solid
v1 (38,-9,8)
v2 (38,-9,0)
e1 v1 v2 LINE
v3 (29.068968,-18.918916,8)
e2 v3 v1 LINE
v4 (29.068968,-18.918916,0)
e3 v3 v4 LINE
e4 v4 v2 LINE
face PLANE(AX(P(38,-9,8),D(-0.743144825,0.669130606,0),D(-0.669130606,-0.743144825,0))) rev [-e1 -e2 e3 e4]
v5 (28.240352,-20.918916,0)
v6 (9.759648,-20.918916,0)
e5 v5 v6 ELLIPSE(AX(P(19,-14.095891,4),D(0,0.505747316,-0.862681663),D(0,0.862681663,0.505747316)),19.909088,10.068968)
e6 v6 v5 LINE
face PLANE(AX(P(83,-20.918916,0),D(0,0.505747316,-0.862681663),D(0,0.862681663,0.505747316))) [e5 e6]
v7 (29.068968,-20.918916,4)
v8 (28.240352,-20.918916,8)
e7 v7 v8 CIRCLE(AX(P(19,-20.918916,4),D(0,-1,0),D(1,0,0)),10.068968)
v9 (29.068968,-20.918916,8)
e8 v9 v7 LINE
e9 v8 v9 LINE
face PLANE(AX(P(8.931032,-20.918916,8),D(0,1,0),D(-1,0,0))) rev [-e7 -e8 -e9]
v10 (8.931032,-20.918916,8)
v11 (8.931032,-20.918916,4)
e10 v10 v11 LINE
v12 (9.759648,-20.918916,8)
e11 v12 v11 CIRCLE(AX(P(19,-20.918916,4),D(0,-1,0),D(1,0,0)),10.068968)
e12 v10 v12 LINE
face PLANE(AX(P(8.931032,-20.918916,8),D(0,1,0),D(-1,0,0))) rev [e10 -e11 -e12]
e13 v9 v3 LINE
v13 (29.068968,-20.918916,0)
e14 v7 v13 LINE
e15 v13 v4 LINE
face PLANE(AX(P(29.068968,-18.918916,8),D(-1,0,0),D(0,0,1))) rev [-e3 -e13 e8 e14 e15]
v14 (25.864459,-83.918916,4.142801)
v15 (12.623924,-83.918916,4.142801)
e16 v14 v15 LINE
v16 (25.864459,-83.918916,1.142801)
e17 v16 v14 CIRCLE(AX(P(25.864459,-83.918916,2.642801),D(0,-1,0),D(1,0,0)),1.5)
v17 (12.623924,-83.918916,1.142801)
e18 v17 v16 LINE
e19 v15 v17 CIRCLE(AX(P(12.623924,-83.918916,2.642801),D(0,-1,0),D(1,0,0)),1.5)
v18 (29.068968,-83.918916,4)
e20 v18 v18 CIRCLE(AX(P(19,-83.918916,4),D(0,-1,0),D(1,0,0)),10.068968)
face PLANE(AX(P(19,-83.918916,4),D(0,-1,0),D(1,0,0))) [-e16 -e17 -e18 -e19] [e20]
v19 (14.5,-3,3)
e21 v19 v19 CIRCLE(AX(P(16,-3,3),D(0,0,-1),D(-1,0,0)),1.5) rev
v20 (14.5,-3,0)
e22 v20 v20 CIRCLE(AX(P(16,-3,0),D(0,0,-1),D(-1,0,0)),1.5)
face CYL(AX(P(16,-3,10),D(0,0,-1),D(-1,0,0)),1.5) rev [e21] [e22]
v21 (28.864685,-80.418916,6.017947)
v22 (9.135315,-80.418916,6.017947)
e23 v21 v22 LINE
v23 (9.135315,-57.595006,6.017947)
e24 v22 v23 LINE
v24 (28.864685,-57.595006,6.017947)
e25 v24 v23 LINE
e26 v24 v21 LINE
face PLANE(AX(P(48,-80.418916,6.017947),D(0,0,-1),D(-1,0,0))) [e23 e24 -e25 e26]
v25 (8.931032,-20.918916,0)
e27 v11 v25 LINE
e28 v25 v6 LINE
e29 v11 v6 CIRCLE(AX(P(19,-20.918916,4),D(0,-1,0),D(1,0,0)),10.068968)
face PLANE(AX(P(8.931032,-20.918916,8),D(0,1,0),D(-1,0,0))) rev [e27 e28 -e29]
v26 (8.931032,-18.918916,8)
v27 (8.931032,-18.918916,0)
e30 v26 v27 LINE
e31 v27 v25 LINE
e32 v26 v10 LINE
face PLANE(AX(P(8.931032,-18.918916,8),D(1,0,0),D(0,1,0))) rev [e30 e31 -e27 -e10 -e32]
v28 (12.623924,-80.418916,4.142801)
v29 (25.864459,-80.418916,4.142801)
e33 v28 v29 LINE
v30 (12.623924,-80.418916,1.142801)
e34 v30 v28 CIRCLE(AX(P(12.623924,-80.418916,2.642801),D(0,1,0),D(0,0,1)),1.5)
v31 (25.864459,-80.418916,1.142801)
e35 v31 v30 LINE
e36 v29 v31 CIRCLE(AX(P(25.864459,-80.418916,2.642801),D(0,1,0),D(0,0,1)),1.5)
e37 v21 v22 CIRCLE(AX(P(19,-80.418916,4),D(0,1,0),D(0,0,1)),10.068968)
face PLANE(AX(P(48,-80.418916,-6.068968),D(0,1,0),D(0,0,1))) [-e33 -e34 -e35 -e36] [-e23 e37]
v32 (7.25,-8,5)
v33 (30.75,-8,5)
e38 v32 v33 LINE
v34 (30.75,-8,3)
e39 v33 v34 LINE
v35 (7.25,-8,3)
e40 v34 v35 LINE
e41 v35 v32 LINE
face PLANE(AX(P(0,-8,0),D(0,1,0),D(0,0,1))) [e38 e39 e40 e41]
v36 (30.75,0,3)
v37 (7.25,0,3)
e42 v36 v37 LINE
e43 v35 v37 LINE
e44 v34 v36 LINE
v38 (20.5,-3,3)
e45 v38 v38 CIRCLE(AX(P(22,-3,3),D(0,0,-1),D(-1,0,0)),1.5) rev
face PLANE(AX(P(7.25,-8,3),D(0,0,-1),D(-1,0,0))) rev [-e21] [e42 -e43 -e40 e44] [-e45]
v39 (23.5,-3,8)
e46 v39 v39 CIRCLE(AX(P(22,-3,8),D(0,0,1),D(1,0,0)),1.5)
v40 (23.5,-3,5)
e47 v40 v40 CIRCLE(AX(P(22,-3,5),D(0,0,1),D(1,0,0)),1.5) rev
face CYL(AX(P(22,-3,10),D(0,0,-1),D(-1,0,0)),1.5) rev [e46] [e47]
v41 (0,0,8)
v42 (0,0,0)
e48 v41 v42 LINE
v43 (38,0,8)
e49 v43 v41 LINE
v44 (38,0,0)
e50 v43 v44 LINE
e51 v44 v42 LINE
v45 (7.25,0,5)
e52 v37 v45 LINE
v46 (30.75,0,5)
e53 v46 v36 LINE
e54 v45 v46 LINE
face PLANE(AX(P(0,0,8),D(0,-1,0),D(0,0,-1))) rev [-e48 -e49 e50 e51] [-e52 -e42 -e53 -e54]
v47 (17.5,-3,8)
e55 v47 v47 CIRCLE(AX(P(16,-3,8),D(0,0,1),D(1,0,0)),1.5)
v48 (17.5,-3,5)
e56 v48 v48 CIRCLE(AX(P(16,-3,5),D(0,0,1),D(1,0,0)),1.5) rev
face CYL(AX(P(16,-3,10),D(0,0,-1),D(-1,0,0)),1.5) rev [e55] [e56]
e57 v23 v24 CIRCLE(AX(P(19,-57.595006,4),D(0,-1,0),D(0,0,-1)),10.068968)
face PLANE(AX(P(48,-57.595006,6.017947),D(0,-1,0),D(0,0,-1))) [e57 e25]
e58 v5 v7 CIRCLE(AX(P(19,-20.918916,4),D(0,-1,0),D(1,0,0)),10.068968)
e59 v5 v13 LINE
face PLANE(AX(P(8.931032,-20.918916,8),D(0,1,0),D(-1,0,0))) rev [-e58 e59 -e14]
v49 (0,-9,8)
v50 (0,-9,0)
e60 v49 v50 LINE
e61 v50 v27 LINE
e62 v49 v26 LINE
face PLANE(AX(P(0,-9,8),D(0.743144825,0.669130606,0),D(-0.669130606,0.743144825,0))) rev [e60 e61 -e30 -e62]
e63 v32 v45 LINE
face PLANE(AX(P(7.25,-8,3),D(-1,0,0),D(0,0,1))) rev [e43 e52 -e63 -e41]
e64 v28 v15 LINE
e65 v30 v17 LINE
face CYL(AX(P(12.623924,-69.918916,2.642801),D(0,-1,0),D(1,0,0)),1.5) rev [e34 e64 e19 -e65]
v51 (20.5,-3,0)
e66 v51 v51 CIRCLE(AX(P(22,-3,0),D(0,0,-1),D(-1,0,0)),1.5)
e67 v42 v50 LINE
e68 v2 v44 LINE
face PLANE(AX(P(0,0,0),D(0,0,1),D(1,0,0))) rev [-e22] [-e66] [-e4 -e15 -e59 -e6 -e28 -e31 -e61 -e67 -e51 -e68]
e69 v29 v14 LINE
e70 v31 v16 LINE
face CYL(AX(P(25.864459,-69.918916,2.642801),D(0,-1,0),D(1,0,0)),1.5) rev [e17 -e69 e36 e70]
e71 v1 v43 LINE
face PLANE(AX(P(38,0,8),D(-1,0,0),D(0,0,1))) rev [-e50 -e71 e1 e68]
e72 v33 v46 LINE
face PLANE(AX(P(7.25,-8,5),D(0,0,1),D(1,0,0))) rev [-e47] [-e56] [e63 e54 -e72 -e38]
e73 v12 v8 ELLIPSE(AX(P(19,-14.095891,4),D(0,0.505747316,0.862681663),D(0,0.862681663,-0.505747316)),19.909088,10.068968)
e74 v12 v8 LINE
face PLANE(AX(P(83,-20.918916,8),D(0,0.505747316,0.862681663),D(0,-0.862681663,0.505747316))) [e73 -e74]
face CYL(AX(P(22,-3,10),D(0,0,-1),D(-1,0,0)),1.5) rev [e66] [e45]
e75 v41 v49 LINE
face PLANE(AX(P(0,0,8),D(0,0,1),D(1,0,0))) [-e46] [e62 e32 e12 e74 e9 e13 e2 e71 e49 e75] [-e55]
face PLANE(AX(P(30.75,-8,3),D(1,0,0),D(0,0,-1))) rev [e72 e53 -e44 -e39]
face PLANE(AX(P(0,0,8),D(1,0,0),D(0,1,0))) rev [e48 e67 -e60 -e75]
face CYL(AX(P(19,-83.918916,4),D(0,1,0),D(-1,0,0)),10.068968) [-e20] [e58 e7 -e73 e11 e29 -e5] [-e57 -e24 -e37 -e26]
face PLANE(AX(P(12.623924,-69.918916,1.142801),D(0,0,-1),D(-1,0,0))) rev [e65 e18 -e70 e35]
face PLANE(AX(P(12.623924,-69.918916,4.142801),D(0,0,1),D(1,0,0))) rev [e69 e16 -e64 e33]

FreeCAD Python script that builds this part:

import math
import FreeCAD as App
import Part
import Sketcher

V = App.Vector
Q = App.Units.Quantity


def add_polygon(sketch, points):
    """Adds a closed chain of lines whose ends are joined by coincident constraints."""
    first, n = sketch.GeometryCount, len(points)
    for a, b in zip(points, points[1:] + points[:1]):
        sketch.addGeometry(Part.LineSegment(App.Vector(*a, 0), App.Vector(*b, 0)), False)
    for i in range(n):
        sketch.addConstraint(Sketcher.Constraint("Coincident", first + i, 2, first + (i + 1) % n, 1))

doc = App.newDocument("Part")
body = doc.addObject("PartDesign::Body", "Body")

# Sketch on XY plane
sketch1 = body.newObject("Sketcher::SketchObject", "Sketch")
sketch1.AttachmentSupport = (doc.getObject("XY_Plane"), [""])
sketch1.MapMode = "FlatFace"
add_polygon(sketch1, [(38, 0), (0, 0), (0, -9), (8.9, -18.9), (8.9, -20.9), (29.1, -20.9), (29.1, -18.9), (38, -9)])  # lines 0-7
sketch1.addConstraint([
    Sketcher.Constraint("Horizontal", 0),
    Sketcher.Constraint("Vertical", 1),
    Sketcher.Constraint("Vertical", 3),
    Sketcher.Constraint("Horizontal", 4),
    Sketcher.Constraint("Vertical", 5),
    Sketcher.Constraint("Vertical", 7),
    Sketcher.Constraint("Coincident", 0, 2, -1, 1),
    Sketcher.Constraint("Horizontal", 2, 2, 5, 2),
    Sketcher.Constraint("Horizontal", 1, 2, 6, 2),
    Sketcher.Constraint("Equal", 2, 6),
    Sketcher.Constraint("DistanceX", 0, 2, 0, 1, Q("38 mm")),
    Sketcher.Constraint("DistanceY", 1, 2, 1, 1, Q("9 mm")),
    Sketcher.Constraint("DistanceY", 3, 2, 3, 1, Q("2 mm")),
    Sketcher.Constraint("Angle", 2, Q("-48 deg")),
    Sketcher.Constraint("Distance", 2, Q("13.347218 mm")),
])
pad1 = body.newObject("PartDesign::Pad", "Pad")
pad1.Profile = sketch1
pad1.Length = 8

# Sketch on XZ plane
sketch2 = body.newObject("Sketcher::SketchObject", "Sketch001")
sketch2.AttachmentSupport = (doc.getObject("XZ_Plane"), [""])
sketch2.MapMode = "FlatFace"
sketch2.AttachmentOffset = App.Placement(V(0, 0, 20.918916), App.Rotation())
sketch2.addGeometry(Part.Circle(V(19, 4, 0), V(0, 0, 1), 10), False)
sketch2.addConstraint([
    Sketcher.Constraint("DistanceX", -1, 1, 0, 3, Q("19 mm")),
    Sketcher.Constraint("DistanceY", -1, 1, 0, 3, Q("4 mm")),
    Sketcher.Constraint("Diameter", 0, Q("20.137936 mm")),
])
pad2 = body.newObject("PartDesign::Pad", "Pad001")
pad2.Profile = sketch2
pad2.Length = 63

# Sketch on YZ plane
sketch3 = body.newObject("Sketcher::SketchObject", "Sketch002")
sketch3.AttachmentSupport = (doc.getObject("YZ_Plane"), [""])
sketch3.MapMode = "FlatFace"
add_polygon(sketch3, [(-21, 0), (-31, -6), (-21, -6)])  # lines 0-2
add_polygon(sketch3, [(-21, 8), (-21, 14), (-31, 14)])  # lines 3-5
sketch3.addConstraint([
    Sketcher.Constraint("Horizontal", 1),
    Sketcher.Constraint("Vertical", 2),
    Sketcher.Constraint("Vertical", 3),
    Sketcher.Constraint("Horizontal", 4),
    Sketcher.Constraint("PointOnObject", 2, 2, -1),
    Sketcher.Constraint("Vertical", 2, 2, 3, 2),
    Sketcher.Constraint("Vertical", 0, 2, 4, 2),
    Sketcher.Constraint("Equal", 2, 3),
    Sketcher.Constraint("Distance", 0, Q("12 mm")),
    Sketcher.Constraint("DistanceY", -1, 1, 5, 2, Q("8 mm")),
    Sketcher.Constraint("DistanceX", 1, 1, 1, 2, Q("10.35218 mm")),
    Sketcher.Constraint("DistanceX", 0, 2, -1, 1, Q("31.271096 mm")),
])
pocket1 = body.newObject("PartDesign::Pocket", "Pocket")
pocket1.Profile = sketch3
pocket1.Length = 83
pocket1.Reversed = True

# Sketch on XY plane
sketch4 = body.newObject("Sketcher::SketchObject", "Sketch003")
sketch4.AttachmentSupport = (doc.getObject("XY_Plane"), [""])
sketch4.MapMode = "FlatFace"
sketch4.addGeometry([
    Part.Circle(V(22, -3, 0), V(0, 0, 1), 1.5),
    Part.Circle(V(16, -3, 0), V(0, 0, 1), 1.5),
], False)
sketch4.addConstraint([
    Sketcher.Constraint("Equal", 0, 1),
    Sketcher.Constraint("Horizontal", 0, 3, 1, 3),
    Sketcher.Constraint("Diameter", 0, Q("3 mm")),
    Sketcher.Constraint("DistanceX", -1, 1, 0, 3, Q("22 mm")),
    Sketcher.Constraint("DistanceY", 0, 3, -1, 1, Q("3 mm")),
    Sketcher.Constraint("DistanceX", -1, 1, 1, 3, Q("16 mm")),
])
pocket2 = body.newObject("PartDesign::Pocket", "Pocket001")
pocket2.Profile = sketch4
pocket2.Length = 10
pocket2.Reversed = True

# Sketch on XZ plane
sketch5 = body.newObject("Sketcher::SketchObject", "Sketch004")
sketch5.AttachmentSupport = (doc.getObject("XZ_Plane"), [""])
sketch5.MapMode = "FlatFace"
add_polygon(sketch5, [(7.2, 3), (7.2, 5), (30.8, 5), (30.8, 3)])  # lines 0-3
sketch5.addConstraint([
    Sketcher.Constraint("Vertical", 0),
    Sketcher.Constraint("Horizontal", 1),
    Sketcher.Constraint("Vertical", 2),
    Sketcher.Constraint("Horizontal", 3),
    Sketcher.Constraint("DistanceY", 0, 1, 0, 2, Q("2 mm")),
    Sketcher.Constraint("DistanceX", 1, 1, 1, 2, Q("23.5 mm")),
    Sketcher.Constraint("DistanceY", -1, 1, 0, 2, Q("5 mm")),
    Sketcher.Constraint("DistanceX", -1, 1, 0, 2, Q("7.25 mm")),
])
pocket3 = body.newObject("PartDesign::Pocket", "Pocket002")
pocket3.Profile = sketch5
pocket3.Length = 8
pocket3.Reversed = True

# Sketch on YZ plane
sketch6 = body.newObject("Sketcher::SketchObject", "Sketch005")
sketch6.AttachmentSupport = (doc.getObject("YZ_Plane"), [""])
sketch6.MapMode = "FlatFace"
add_polygon(sketch6, [(-58, 6), (-80, 6), (-80, -6), (-58, -6)])  # lines 0-3
sketch6.addConstraint([
    Sketcher.Constraint("Horizontal", 0),
    Sketcher.Constraint("Vertical", 1),
    Sketcher.Constraint("Horizontal", 2),
    Sketcher.Constraint("Vertical", 3),
    Sketcher.Constraint("DistanceX", 0, 2, 0, 1, Q("22.82391 mm")),
    Sketcher.Constraint("DistanceY", 1, 2, 1, 1, Q("12.086915 mm")),
    Sketcher.Constraint("DistanceX", 0, 2, -1, 1, Q("80.418916 mm")),
    Sketcher.Constraint("DistanceY", -1, 1, 0, 2, Q("6.017947 mm")),
])
pocket4 = body.newObject("PartDesign::Pocket", "Pocket003")
pocket4.Profile = sketch6
pocket4.Length = 48
pocket4.Reversed = True

# Sketch on XZ plane
sketch7 = body.newObject("Sketcher::SketchObject", "Sketch006")
sketch7.AttachmentSupport = (doc.getObject("XZ_Plane"), [""])
sketch7.MapMode = "FlatFace"
sketch7.AttachmentOffset = App.Placement(V(0, 0, 83.918916), App.Rotation())
sketch7.addGeometry([
    Part.LineSegment(V(25.9, 4.1, 0), V(12.6, 4.1, 0)),
    Part.ArcOfCircle(Part.Circle(V(12.6, 2.6, 0), V(0, 0, 1), 1.5), math.radians(90), math.radians(270)),
    Part.LineSegment(V(12.6, 1.1, 0), V(25.9, 1.1, 0)),
    Part.ArcOfCircle(Part.Circle(V(25.9, 2.6, 0), V(0, 0, 1), 1.5), math.radians(-90), math.radians(90)),
], False)
sketch7.addConstraint([
    Sketcher.Constraint("Tangent", 0, 2, 1, 1),
    Sketcher.Constraint("Tangent", 1, 2, 2, 1),
    Sketcher.Constraint("Tangent", 2, 2, 3, 1),
    Sketcher.Constraint("Tangent", 3, 2, 0, 1),
    Sketcher.Constraint("Horizontal", 0),
    Sketcher.Constraint("Horizontal", 2),
    Sketcher.Constraint("Radius", 1, Q("1.5 mm")),
    Sketcher.Constraint("DistanceY", -1, 1, 1, 3, Q("2.642801 mm")),
    Sketcher.Constraint("DistanceX", 0, 2, 0, 1, Q("13.240534 mm")),
    Sketcher.Constraint("DistanceX", -1, 1, 3, 3, Q("25.864459 mm")),
])
pocket5 = body.newObject("PartDesign::Pocket", "Pocket004")
pocket5.Profile = sketch7
pocket5.Length = 14

doc.recompute()
